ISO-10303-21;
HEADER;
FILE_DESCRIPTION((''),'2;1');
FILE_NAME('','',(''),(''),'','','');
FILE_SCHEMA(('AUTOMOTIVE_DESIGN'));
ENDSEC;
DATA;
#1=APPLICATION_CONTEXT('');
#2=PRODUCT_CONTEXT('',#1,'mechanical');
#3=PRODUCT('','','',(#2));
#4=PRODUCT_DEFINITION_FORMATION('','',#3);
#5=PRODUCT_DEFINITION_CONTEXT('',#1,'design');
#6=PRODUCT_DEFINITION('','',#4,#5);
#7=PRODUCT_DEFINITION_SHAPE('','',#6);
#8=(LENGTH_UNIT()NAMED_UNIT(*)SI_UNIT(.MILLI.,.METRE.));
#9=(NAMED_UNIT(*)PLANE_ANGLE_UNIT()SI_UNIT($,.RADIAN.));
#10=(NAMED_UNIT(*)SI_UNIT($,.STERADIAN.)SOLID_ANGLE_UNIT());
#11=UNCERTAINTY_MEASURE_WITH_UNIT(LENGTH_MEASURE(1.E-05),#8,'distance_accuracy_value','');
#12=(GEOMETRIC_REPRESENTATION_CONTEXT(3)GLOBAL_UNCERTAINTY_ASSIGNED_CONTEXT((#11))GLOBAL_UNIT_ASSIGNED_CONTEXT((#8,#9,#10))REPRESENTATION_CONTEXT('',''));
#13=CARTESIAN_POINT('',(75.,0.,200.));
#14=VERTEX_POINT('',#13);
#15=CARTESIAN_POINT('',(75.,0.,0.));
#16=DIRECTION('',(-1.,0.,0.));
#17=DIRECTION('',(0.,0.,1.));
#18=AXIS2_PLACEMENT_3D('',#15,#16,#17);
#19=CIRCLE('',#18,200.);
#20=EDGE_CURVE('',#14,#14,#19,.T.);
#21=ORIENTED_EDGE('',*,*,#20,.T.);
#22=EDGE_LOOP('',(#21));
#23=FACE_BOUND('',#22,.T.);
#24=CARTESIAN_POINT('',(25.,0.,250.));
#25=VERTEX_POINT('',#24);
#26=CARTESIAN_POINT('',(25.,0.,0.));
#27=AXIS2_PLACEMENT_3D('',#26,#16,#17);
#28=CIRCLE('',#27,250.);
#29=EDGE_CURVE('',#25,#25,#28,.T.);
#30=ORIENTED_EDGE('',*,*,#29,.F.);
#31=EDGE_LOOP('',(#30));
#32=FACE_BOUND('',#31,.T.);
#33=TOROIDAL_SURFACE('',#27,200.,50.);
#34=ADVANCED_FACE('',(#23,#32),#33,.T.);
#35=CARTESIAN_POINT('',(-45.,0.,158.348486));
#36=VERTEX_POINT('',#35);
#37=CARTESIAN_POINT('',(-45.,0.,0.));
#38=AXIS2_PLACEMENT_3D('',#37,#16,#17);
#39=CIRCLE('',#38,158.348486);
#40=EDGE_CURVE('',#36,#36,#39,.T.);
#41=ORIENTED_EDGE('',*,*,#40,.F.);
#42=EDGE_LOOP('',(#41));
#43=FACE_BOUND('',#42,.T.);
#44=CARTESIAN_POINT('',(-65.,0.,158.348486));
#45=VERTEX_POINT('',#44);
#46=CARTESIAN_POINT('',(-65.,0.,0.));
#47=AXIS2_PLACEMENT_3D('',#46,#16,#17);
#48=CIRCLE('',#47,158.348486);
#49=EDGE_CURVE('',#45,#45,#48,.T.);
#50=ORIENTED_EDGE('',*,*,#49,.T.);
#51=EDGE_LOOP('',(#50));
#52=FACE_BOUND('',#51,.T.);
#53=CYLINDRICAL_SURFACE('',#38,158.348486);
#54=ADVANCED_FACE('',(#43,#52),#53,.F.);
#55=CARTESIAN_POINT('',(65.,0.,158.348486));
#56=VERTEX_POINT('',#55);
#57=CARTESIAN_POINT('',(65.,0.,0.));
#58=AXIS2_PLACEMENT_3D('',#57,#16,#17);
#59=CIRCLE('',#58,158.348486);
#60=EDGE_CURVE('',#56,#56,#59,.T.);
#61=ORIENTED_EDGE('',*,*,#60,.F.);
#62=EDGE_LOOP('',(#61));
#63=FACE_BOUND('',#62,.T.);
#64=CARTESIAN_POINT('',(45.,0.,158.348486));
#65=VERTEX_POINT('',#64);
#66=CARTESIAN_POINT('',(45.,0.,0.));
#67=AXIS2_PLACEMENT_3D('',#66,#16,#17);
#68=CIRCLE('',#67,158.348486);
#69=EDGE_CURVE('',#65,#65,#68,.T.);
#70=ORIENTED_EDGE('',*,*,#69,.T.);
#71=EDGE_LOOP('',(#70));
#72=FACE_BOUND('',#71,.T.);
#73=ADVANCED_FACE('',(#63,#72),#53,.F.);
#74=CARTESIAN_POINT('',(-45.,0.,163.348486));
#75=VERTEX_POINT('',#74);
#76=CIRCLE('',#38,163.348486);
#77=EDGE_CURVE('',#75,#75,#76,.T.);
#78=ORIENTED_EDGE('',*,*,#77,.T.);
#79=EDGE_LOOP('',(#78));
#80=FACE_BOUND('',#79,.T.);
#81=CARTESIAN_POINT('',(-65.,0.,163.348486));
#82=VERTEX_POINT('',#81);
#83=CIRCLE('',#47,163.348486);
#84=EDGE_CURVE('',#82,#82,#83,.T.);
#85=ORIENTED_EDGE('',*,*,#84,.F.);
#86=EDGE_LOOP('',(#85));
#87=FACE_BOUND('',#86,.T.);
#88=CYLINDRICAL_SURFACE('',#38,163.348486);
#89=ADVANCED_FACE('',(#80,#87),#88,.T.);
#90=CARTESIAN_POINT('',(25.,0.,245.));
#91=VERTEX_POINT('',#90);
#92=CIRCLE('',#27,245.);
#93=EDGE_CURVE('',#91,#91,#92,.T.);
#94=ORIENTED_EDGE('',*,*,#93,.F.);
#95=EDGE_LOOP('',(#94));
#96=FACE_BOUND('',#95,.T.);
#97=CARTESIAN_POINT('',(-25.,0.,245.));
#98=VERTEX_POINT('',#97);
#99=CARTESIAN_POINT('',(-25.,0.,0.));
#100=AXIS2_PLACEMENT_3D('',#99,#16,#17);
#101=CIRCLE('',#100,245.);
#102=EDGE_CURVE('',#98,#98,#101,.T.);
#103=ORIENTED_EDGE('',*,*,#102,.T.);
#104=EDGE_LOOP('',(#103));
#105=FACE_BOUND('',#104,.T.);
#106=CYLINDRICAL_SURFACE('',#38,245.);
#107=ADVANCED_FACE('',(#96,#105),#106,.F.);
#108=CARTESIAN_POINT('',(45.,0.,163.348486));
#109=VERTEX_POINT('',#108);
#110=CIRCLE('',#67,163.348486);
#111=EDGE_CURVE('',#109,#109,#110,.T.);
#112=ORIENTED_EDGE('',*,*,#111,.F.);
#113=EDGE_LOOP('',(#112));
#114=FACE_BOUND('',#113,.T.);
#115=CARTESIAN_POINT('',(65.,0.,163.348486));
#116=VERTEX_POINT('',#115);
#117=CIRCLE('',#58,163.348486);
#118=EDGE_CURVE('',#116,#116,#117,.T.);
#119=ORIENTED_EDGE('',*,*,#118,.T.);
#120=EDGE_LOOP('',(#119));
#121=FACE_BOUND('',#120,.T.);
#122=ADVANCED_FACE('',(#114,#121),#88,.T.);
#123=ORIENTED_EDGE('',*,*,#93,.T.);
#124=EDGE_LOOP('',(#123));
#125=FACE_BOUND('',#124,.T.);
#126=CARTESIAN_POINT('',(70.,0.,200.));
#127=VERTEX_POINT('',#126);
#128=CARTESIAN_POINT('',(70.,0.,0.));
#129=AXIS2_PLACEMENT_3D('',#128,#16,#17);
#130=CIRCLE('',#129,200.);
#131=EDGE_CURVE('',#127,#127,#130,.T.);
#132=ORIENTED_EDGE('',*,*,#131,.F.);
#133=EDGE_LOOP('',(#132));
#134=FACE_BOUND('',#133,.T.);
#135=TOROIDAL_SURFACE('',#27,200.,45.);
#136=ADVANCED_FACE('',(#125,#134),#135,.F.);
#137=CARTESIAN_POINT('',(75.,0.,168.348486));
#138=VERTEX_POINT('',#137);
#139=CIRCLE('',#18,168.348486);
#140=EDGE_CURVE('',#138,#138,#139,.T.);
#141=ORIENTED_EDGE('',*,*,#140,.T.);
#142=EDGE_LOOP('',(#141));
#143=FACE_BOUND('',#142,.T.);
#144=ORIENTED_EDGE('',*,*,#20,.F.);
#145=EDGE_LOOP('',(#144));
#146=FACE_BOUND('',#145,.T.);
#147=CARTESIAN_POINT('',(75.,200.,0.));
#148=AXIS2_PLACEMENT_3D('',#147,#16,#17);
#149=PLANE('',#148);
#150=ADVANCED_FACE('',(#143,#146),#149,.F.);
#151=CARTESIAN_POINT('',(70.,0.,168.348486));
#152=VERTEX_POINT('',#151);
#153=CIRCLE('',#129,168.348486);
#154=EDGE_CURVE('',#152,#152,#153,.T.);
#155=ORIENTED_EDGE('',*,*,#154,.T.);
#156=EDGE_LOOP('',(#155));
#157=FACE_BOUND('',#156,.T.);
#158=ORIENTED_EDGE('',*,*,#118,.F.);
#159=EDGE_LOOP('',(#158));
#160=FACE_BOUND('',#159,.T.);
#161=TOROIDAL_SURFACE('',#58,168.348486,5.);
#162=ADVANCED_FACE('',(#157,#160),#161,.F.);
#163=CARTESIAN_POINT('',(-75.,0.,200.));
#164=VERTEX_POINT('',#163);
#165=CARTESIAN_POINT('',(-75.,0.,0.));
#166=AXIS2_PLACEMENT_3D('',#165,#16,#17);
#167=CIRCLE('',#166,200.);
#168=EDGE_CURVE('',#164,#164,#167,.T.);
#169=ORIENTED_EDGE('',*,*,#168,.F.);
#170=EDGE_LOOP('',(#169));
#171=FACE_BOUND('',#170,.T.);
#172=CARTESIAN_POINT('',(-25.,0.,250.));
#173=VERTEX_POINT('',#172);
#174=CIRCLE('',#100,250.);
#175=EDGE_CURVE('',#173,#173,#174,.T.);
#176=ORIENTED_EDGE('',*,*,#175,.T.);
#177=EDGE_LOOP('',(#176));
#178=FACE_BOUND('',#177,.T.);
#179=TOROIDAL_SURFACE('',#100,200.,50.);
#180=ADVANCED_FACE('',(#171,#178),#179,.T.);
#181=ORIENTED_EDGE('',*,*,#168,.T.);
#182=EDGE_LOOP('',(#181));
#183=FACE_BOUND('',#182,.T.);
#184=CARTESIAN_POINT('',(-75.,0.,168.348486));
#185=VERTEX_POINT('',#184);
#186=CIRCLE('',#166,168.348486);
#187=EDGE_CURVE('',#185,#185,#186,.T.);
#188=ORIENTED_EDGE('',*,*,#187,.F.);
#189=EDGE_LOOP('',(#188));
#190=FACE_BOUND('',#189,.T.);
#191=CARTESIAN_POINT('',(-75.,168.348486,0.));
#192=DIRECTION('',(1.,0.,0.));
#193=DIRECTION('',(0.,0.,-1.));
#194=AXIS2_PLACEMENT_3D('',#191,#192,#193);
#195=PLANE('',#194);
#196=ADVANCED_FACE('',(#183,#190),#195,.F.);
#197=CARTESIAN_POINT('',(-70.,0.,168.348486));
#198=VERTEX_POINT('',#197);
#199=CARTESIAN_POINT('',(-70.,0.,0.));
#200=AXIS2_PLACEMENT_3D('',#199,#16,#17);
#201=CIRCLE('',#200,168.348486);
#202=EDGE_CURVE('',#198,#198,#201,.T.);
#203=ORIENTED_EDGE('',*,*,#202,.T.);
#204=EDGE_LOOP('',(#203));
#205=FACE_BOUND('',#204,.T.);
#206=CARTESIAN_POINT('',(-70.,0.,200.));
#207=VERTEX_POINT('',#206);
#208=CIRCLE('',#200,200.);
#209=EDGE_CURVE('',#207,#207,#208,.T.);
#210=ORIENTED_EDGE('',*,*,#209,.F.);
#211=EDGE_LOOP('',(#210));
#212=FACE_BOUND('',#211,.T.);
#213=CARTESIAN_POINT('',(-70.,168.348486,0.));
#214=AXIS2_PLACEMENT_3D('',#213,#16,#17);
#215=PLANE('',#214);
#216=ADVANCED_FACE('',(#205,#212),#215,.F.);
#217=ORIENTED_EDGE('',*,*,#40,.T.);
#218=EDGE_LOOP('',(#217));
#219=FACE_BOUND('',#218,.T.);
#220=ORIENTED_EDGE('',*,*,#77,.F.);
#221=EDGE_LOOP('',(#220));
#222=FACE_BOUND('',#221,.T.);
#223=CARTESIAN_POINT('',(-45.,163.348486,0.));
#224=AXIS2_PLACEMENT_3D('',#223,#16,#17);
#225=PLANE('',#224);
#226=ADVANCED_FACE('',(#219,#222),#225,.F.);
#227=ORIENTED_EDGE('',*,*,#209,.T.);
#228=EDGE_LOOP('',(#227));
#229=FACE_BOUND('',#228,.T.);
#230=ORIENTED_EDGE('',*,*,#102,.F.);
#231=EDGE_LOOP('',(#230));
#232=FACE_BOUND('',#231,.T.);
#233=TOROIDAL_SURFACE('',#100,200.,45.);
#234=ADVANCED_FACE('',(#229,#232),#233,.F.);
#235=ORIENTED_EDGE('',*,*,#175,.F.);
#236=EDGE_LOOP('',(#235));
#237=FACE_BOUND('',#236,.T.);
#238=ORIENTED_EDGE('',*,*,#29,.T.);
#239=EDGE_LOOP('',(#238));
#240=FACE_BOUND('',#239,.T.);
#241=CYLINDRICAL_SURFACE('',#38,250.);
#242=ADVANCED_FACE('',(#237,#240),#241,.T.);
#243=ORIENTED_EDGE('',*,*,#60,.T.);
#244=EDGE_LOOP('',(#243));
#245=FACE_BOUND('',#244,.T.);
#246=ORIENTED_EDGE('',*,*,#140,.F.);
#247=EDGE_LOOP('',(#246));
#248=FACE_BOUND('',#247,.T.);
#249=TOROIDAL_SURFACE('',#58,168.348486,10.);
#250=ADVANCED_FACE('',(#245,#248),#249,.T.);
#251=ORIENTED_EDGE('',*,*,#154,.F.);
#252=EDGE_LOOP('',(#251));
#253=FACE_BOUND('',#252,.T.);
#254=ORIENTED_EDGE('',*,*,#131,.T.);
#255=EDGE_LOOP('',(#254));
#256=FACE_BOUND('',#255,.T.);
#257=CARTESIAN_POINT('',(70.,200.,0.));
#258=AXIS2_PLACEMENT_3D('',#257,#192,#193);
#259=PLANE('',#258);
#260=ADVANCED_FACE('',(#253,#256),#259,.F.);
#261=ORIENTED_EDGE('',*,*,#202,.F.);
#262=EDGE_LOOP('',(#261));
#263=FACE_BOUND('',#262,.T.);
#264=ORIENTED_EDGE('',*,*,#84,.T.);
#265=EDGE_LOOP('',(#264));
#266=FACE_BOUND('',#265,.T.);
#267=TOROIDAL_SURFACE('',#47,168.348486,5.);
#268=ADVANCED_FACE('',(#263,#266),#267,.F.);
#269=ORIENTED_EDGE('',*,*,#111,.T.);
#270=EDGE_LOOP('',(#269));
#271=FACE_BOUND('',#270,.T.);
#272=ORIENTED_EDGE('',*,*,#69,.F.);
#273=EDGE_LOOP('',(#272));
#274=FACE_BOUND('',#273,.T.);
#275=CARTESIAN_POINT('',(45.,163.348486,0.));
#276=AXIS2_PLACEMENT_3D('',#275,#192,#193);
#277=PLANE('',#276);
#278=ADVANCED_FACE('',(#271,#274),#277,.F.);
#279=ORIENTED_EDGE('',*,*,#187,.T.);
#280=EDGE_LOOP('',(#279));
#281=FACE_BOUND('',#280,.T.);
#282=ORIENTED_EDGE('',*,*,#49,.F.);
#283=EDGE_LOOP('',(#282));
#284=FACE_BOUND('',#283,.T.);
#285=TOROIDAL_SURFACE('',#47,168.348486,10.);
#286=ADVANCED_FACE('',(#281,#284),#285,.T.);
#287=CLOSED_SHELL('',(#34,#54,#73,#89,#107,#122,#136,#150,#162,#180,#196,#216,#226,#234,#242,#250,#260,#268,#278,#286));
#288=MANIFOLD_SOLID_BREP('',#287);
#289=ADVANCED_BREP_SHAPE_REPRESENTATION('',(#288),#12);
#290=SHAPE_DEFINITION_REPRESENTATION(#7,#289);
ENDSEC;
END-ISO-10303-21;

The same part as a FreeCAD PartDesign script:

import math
import FreeCAD as App
import Part
import Sketcher
Q = App.Units.Quantity

doc = App.newDocument("Part")
body = doc.addObject("PartDesign::Body", "Body")

sketch1 = body.newObject("Sketcher::SketchObject", "Sketch")
sketch1.AttachmentSupport = (doc.getObject("XY_Plane"), [""])
sketch1.MapMode = "FlatFace"
sketch1.addGeometry(Part.LineSegment(App.Vector(-65, 158, 0), App.Vector(-45, 158, 0)), False)
sketch1.addGeometry(Part.LineSegment(App.Vector(-45, 158, 0), App.Vector(-45, 163, 0)), False)
sketch1.addGeometry(Part.LineSegment(App.Vector(-45, 163, 0), App.Vector(-65, 163, 0)), False)
sketch1.addGeometry(Part.ArcOfCircle(Part.Circle(App.Vector(-65, 168, 0), App.Vector(0, 0, 1), 5), math.radians(180), math.radians(270)), False)
sketch1.addGeometry(Part.LineSegment(App.Vector(-70, 168, 0), App.Vector(-70, 200, 0)), False)
sketch1.addGeometry(Part.ArcOfCircle(Part.Circle(App.Vector(-25, 200, 0), App.Vector(0, 0, 1), 45), math.radians(90), math.radians(180)), False)
sketch1.addGeometry(Part.LineSegment(App.Vector(-25, 245, 0), App.Vector(25, 245, 0)), False)
sketch1.addGeometry(Part.ArcOfCircle(Part.Circle(App.Vector(25, 200, 0), App.Vector(0, 0, 1), 45), math.radians(0), math.radians(90)), False)
sketch1.addGeometry(Part.LineSegment(App.Vector(70, 200, 0), App.Vector(70, 168, 0)), False)
sketch1.addGeometry(Part.ArcOfCircle(Part.Circle(App.Vector(65, 168, 0), App.Vector(0, 0, 1), 5), math.radians(-90), math.radians(0)), False)
sketch1.addGeometry(Part.LineSegment(App.Vector(65, 163, 0), App.Vector(45, 163, 0)), False)
sketch1.addGeometry(Part.LineSegment(App.Vector(45, 163, 0), App.Vector(45, 158, 0)), False)
sketch1.addGeometry(Part.LineSegment(App.Vector(45, 158, 0), App.Vector(65, 158, 0)), False)
sketch1.addGeometry(Part.ArcOfCircle(Part.Circle(App.Vector(65, 168, 0), App.Vector(0, 0, 1), 10), math.radians(-90), math.radians(0)), False)
sketch1.addGeometry(Part.LineSegment(App.Vector(75, 168, 0), App.Vector(75, 200, 0)), False)
sketch1.addGeometry(Part.ArcOfCircle(Part.Circle(App.Vector(25, 200, 0), App.Vector(0, 0, 1), 50), math.radians(0), math.radians(90)), False)
sketch1.addGeometry(Part.LineSegment(App.Vector(25, 250, 0), App.Vector(-25, 250, 0)), False)
sketch1.addGeometry(Part.ArcOfCircle(Part.Circle(App.Vector(-25, 200, 0), App.Vector(0, 0, 1), 50), math.radians(90), math.radians(180)), False)
sketch1.addGeometry(Part.LineSegment(App.Vector(-75, 200, 0), App.Vector(-75, 168, 0)), False)
sketch1.addGeometry(Part.ArcOfCircle(Part.Circle(App.Vector(-65, 168, 0), App.Vector(0, 0, 1), 10), math.radians(180), math.radians(270)), False)
sketch1.addConstraint(Sketcher.Constraint("Coincident", 0, 2, 1, 1))
sketch1.addConstraint(Sketcher.Constraint("Coincident", 1, 2, 2, 1))
sketch1.addConstraint(Sketcher.Constraint("Tangent", 2, 2, 3, 2))
sketch1.addConstraint(Sketcher.Constraint("Tangent", 3, 1, 4, 1))
sketch1.addConstraint(Sketcher.Constraint("Tangent", 4, 2, 5, 2))
sketch1.addConstraint(Sketcher.Constraint("Tangent", 5, 1, 6, 1))
sketch1.addConstraint(Sketcher.Constraint("Tangent", 6, 2, 7, 2))
sketch1.addConstraint(Sketcher.Constraint("Tangent", 7, 1, 8, 1))
sketch1.addConstraint(Sketcher.Constraint("Tangent", 8, 2, 9, 2))
sketch1.addConstraint(Sketcher.Constraint("Tangent", 9, 1, 10, 1))
sketch1.addConstraint(Sketcher.Constraint("Coincident", 10, 2, 11, 1))
sketch1.addConstraint(Sketcher.Constraint("Coincident", 11, 2, 12, 1))
sketch1.addConstraint(Sketcher.Constraint("Tangent", 12, 2, 13, 1))
sketch1.addConstraint(Sketcher.Constraint("Tangent", 13, 2, 14, 1))
sketch1.addConstraint(Sketcher.Constraint("Tangent", 14, 2, 15, 1))
sketch1.addConstraint(Sketcher.Constraint("Tangent", 15, 2, 16, 1))
sketch1.addConstraint(Sketcher.Constraint("Tangent", 16, 2, 17, 1))
sketch1.addConstraint(Sketcher.Constraint("Tangent", 17, 2, 18, 1))
sketch1.addConstraint(Sketcher.Constraint("Tangent", 18, 2, 19, 1))
sketch1.addConstraint(Sketcher.Constraint("Tangent", 19, 2, 0, 1))
sketch1.addConstraint(Sketcher.Constraint("Horizontal", 0))
sketch1.addConstraint(Sketcher.Constraint("Vertical", 1))
sketch1.addConstraint(Sketcher.Constraint("Horizontal", 2))
sketch1.addConstraint(Sketcher.Constraint("Vertical", 4))
sketch1.addConstraint(Sketcher.Constraint("Horizontal", 6))
sketch1.addConstraint(Sketcher.Constraint("Vertical", 8))
sketch1.addConstraint(Sketcher.Constraint("Horizontal", 10))
sketch1.addConstraint(Sketcher.Constraint("Vertical", 11))
sketch1.addConstraint(Sketcher.Constraint("Horizontal", 12))
sketch1.addConstraint(Sketcher.Constraint("Vertical", 14))
sketch1.addConstraint(Sketcher.Constraint("Horizontal", 16))
sketch1.addConstraint(Sketcher.Constraint("Vertical", 18))
sketch1.addConstraint(Sketcher.Constraint("Coincident", 13, 3, 9, 3))
sketch1.addConstraint(Sketcher.Constraint("Coincident", 15, 3, 7, 3))
sketch1.addConstraint(Sketcher.Constraint("Coincident", 17, 3, 5, 3))
sketch1.addConstraint(Sketcher.Constraint("Coincident", 19, 3, 3, 3))
sketch1.addConstraint(Sketcher.Constraint("Equal", 5, 7))
sketch1.addConstraint(Sketcher.Constraint("Equal", 3, 9))
sketch1.addConstraint(Sketcher.Constraint("Symmetric", 3, 3, 9, 3, -2))
sketch1.addConstraint(Sketcher.Constraint("Equal", 2, 10))
sketch1.addConstraint(Sketcher.Constraint("Radius", 3, Q("5 mm")))
sketch1.addConstraint(Sketcher.Constraint("Radius", 5, Q("45 mm")))
sketch1.addConstraint(Sketcher.Constraint("Radius", 13, Q("10 mm")))
sketch1.addConstraint(Sketcher.Constraint("DistanceX", 0, 1, 0, 2, Q("20 mm")))
sketch1.addConstraint(Sketcher.Constraint("DistanceX", 6, 1, 6, 2, Q("50 mm")))
sketch1.addConstraint(Sketcher.Constraint("DistanceY", -1, 1, 5, 3, Q("200 mm")))
sketch1.addConstraint(Sketcher.Constraint("DistanceY", 4, 1, 4, 2, Q("31.651514 mm")))
revolution = body.newObject("PartDesign::Revolution", "Revolution")
revolution.Profile = sketch1
revolution.ReferenceAxis = (sketch1, ["H_Axis"])
revolution.Angle = 360

doc.recompute()
